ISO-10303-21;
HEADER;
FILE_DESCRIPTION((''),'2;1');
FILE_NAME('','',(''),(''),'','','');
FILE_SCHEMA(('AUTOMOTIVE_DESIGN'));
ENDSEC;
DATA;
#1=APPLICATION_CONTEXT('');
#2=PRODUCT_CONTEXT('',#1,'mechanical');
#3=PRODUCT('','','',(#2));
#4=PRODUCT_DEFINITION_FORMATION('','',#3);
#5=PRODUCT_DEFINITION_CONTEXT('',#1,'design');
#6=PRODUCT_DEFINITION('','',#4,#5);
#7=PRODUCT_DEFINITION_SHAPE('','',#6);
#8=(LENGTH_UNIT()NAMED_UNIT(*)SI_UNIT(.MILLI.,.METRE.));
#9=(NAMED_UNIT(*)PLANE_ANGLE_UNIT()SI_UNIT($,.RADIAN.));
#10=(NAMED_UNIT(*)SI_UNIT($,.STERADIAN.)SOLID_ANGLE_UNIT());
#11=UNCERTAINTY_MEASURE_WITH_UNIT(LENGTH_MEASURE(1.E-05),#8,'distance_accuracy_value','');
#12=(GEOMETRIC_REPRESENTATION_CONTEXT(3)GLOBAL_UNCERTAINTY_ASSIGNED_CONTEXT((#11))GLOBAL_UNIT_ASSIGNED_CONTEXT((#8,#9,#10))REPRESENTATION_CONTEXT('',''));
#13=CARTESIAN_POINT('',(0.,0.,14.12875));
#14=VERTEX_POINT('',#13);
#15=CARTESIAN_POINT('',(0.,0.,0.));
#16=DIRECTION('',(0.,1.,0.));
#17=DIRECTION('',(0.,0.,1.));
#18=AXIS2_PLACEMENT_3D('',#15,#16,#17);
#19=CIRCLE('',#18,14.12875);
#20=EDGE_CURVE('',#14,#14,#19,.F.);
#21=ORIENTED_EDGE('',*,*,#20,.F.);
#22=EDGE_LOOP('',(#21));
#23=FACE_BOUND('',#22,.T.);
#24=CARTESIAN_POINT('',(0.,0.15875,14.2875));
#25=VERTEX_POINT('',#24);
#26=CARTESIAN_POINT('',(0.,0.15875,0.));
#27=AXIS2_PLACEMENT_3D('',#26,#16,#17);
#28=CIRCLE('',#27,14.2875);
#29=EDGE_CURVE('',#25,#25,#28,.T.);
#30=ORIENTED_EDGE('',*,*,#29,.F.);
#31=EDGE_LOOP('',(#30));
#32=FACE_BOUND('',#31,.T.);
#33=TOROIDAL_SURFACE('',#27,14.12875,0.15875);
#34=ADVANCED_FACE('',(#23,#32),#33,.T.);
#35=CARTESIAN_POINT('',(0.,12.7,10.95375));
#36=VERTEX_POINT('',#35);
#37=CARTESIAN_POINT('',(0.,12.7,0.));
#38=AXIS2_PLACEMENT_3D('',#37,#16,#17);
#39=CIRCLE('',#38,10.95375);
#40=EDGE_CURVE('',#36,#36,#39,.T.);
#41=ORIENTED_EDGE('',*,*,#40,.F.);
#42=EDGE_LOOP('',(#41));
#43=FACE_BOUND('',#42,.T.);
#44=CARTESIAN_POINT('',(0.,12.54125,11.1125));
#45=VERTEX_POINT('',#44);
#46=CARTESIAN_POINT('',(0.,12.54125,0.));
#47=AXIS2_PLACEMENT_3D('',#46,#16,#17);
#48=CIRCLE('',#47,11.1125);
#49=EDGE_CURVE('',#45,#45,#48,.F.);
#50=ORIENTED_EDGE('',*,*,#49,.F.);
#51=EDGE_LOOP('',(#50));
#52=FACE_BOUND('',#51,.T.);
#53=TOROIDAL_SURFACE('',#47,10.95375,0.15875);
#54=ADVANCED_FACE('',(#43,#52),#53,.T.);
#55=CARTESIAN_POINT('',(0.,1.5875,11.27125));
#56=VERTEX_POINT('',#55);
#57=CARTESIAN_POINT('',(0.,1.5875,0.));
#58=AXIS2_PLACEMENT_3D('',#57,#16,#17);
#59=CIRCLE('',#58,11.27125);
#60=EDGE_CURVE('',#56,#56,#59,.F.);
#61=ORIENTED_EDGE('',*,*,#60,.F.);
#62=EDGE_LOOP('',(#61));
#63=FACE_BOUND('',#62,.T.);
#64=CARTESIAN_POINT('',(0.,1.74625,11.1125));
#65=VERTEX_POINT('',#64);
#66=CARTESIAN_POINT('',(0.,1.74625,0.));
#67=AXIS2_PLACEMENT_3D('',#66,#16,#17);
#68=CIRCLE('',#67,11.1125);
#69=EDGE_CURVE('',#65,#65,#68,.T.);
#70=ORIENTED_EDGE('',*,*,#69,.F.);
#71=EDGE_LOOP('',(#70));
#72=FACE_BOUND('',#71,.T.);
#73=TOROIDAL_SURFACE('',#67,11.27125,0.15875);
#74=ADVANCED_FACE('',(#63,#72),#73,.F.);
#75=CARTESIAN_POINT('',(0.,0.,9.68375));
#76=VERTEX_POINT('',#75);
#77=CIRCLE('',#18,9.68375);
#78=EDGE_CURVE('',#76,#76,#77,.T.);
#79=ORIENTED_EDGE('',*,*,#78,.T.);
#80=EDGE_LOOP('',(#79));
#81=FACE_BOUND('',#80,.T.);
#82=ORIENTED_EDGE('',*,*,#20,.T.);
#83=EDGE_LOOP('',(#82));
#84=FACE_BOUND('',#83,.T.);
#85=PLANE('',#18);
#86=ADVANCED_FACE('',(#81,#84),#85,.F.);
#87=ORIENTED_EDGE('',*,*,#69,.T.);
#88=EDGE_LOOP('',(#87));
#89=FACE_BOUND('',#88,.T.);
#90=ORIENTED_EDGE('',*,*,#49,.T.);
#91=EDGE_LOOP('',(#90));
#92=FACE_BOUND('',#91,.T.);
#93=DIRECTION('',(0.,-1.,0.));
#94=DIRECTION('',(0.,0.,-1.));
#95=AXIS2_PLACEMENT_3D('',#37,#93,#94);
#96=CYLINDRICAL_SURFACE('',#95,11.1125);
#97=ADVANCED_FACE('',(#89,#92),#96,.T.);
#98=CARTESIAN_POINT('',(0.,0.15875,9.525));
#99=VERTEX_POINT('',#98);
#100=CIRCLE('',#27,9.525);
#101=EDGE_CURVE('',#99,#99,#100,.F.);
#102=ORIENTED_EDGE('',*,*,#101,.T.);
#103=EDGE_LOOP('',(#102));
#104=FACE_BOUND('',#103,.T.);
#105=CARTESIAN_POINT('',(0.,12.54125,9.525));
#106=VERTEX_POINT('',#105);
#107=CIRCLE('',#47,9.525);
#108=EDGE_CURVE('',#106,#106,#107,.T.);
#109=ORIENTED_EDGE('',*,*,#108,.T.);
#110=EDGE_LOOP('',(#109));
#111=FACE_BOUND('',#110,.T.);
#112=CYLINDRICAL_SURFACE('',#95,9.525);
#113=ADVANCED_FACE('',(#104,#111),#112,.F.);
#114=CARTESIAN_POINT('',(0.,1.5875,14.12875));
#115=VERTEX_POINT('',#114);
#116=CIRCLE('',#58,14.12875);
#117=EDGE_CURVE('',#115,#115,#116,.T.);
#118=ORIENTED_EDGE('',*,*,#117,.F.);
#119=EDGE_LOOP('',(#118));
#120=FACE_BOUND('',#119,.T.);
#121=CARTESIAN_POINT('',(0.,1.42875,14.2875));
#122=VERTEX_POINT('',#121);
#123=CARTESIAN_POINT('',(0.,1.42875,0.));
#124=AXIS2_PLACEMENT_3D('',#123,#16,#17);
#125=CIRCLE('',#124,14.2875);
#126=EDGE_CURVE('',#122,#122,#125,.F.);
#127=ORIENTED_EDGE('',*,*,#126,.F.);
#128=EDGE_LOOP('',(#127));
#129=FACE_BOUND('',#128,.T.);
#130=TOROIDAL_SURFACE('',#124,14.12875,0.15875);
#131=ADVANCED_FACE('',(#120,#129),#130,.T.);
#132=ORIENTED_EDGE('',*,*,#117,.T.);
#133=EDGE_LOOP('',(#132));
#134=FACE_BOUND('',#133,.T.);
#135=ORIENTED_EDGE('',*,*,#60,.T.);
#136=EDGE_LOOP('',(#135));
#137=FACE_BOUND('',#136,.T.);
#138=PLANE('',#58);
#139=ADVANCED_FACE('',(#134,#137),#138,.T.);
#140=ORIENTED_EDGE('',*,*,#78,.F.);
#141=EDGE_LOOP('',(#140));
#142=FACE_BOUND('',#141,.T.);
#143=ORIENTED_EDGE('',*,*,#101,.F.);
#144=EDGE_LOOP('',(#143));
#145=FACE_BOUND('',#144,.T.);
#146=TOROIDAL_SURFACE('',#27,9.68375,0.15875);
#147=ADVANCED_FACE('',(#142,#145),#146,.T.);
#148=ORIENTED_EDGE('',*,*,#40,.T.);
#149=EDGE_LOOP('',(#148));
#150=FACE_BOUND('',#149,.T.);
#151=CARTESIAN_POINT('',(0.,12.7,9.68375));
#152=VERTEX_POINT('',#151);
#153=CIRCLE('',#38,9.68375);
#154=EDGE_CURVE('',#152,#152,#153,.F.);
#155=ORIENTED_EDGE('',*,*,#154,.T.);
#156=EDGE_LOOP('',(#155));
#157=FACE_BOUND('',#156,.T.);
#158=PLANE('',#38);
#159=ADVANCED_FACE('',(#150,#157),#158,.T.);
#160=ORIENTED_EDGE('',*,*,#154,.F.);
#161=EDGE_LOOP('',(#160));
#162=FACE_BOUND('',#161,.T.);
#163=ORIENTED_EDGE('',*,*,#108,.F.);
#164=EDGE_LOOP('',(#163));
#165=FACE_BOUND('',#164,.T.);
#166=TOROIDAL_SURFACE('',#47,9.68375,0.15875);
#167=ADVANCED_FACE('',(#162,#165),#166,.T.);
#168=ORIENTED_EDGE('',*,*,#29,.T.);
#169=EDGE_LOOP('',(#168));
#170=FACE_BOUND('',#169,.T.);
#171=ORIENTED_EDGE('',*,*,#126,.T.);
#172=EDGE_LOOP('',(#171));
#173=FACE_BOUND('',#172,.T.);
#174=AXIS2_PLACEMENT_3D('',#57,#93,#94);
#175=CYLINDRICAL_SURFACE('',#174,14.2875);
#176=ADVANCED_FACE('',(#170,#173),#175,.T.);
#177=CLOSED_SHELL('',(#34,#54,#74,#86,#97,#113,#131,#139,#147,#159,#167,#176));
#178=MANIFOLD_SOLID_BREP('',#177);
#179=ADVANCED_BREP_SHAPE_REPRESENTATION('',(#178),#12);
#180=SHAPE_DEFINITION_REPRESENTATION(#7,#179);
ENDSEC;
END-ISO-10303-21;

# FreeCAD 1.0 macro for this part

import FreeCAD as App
import Part
import Sketcher
Q = App.Units.Quantity


def edges_at(feature, points):
    """Names of the edges that pass closest to the given points."""
    edges = feature.Shape.Edges
    near = lambda p: min(range(len(edges)), key=lambda i: edges[i].distToShape(Part.Vertex(*p))[0])
    return sorted({f"Edge{near(p) + 1}" for p in points})

doc = App.newDocument("Part")
params = doc.addObject("Spreadsheet::Sheet", "Params")
for row, (alias, value) in enumerate([
    ("sketch1_diameter", "0.75 in"),
    ("sketch1_diameter2", "0.875 in"),
    ("pad1_length", "0.5 in"),
    ("sketch2_diameter", "1.125 in"),
    ("sketch2_diameter2", "0.875 in"),
    ("pad2_length", "0.0625 in"),
    ("fillet_radius", "0.15875 mm"),
], start=1):
    params.set(f"A{row}", alias)
    params.set(f"B{row}", "=" + value)
    params.setAlias(f"B{row}", alias)

body = doc.addObject("PartDesign::Body", "Body")

sketch1 = body.newObject("Sketcher::SketchObject", "Sketch")
sketch1.AttachmentSupport = (doc.getObject("XZ_Plane"), [""])
sketch1.MapMode = "FlatFace"
sketch1.addGeometry(Part.Circle(App.Vector(0, 0, 0), App.Vector(0, 0, 1), 11), False)
sketch1.addGeometry(Part.Circle(App.Vector(0, 0, 0), App.Vector(0, 0, 1), 10), False)
sketch1.addConstraint(Sketcher.Constraint("Coincident", 0, 3, -1, 1))
sketch1.addConstraint(Sketcher.Constraint("Coincident", 1, 3, -1, 1))
sketch1.addConstraint(Sketcher.Constraint("Diameter", 1, Q("0.75 in")))
sketch1.addConstraint(Sketcher.Constraint("Diameter", 0, Q("0.875 in")))
sketch1.setExpression("Constraints[2]", "Params.sketch1_diameter")
sketch1.setExpression("Constraints[3]", "Params.sketch1_diameter2")
pad1 = body.newObject("PartDesign::Pad", "Pad")
pad1.Profile = sketch1
pad1.setExpression("Length", "Params.pad1_length")
pad1.Reversed = True

sketch2 = body.newObject("Sketcher::SketchObject", "Sketch001")
sketch2.AttachmentSupport = (doc.getObject("XZ_Plane"), [""])
sketch2.MapMode = "FlatFace"
sketch2.addGeometry(Part.Circle(App.Vector(0, 0, 0), App.Vector(0, 0, 1), 14), False)
sketch2.addGeometry(Part.Circle(App.Vector(0, 0, 0), App.Vector(0, 0, 1), 11), False)
sketch2.addConstraint(Sketcher.Constraint("Coincident", 0, 3, -1, 1))
sketch2.addConstraint(Sketcher.Constraint("Coincident", 1, 3, -1, 1))
sketch2.addConstraint(Sketcher.Constraint("Diameter", 0, Q("1.125 in")))
sketch2.addConstraint(Sketcher.Constraint("Diameter", 1, Q("0.875 in")))
sketch2.setExpression("Constraints[2]", "Params.sketch2_diameter")
sketch2.setExpression("Constraints[3]", "Params.sketch2_diameter2")
pad2 = body.newObject("PartDesign::Pad", "Pad001")
pad2.Profile = sketch2
pad2.setExpression("Length", "Params.pad2_length")
pad2.Reversed = True
doc.recompute()

fillet = body.newObject("PartDesign::Fillet", "Fillet")
fillet.Base = (pad2, edges_at(pad2, [
    (0, 0, -14.287),
    (0, 1.587, -11.113),
    (0, 12.7, -11.113),
    (0, 0, -9.525),
    (0, 12.7, -9.525),
    (0, 1.587, -14.287),
]))
fillet.setExpression("Radius", "Params.fillet_radius")

doc.recompute()
